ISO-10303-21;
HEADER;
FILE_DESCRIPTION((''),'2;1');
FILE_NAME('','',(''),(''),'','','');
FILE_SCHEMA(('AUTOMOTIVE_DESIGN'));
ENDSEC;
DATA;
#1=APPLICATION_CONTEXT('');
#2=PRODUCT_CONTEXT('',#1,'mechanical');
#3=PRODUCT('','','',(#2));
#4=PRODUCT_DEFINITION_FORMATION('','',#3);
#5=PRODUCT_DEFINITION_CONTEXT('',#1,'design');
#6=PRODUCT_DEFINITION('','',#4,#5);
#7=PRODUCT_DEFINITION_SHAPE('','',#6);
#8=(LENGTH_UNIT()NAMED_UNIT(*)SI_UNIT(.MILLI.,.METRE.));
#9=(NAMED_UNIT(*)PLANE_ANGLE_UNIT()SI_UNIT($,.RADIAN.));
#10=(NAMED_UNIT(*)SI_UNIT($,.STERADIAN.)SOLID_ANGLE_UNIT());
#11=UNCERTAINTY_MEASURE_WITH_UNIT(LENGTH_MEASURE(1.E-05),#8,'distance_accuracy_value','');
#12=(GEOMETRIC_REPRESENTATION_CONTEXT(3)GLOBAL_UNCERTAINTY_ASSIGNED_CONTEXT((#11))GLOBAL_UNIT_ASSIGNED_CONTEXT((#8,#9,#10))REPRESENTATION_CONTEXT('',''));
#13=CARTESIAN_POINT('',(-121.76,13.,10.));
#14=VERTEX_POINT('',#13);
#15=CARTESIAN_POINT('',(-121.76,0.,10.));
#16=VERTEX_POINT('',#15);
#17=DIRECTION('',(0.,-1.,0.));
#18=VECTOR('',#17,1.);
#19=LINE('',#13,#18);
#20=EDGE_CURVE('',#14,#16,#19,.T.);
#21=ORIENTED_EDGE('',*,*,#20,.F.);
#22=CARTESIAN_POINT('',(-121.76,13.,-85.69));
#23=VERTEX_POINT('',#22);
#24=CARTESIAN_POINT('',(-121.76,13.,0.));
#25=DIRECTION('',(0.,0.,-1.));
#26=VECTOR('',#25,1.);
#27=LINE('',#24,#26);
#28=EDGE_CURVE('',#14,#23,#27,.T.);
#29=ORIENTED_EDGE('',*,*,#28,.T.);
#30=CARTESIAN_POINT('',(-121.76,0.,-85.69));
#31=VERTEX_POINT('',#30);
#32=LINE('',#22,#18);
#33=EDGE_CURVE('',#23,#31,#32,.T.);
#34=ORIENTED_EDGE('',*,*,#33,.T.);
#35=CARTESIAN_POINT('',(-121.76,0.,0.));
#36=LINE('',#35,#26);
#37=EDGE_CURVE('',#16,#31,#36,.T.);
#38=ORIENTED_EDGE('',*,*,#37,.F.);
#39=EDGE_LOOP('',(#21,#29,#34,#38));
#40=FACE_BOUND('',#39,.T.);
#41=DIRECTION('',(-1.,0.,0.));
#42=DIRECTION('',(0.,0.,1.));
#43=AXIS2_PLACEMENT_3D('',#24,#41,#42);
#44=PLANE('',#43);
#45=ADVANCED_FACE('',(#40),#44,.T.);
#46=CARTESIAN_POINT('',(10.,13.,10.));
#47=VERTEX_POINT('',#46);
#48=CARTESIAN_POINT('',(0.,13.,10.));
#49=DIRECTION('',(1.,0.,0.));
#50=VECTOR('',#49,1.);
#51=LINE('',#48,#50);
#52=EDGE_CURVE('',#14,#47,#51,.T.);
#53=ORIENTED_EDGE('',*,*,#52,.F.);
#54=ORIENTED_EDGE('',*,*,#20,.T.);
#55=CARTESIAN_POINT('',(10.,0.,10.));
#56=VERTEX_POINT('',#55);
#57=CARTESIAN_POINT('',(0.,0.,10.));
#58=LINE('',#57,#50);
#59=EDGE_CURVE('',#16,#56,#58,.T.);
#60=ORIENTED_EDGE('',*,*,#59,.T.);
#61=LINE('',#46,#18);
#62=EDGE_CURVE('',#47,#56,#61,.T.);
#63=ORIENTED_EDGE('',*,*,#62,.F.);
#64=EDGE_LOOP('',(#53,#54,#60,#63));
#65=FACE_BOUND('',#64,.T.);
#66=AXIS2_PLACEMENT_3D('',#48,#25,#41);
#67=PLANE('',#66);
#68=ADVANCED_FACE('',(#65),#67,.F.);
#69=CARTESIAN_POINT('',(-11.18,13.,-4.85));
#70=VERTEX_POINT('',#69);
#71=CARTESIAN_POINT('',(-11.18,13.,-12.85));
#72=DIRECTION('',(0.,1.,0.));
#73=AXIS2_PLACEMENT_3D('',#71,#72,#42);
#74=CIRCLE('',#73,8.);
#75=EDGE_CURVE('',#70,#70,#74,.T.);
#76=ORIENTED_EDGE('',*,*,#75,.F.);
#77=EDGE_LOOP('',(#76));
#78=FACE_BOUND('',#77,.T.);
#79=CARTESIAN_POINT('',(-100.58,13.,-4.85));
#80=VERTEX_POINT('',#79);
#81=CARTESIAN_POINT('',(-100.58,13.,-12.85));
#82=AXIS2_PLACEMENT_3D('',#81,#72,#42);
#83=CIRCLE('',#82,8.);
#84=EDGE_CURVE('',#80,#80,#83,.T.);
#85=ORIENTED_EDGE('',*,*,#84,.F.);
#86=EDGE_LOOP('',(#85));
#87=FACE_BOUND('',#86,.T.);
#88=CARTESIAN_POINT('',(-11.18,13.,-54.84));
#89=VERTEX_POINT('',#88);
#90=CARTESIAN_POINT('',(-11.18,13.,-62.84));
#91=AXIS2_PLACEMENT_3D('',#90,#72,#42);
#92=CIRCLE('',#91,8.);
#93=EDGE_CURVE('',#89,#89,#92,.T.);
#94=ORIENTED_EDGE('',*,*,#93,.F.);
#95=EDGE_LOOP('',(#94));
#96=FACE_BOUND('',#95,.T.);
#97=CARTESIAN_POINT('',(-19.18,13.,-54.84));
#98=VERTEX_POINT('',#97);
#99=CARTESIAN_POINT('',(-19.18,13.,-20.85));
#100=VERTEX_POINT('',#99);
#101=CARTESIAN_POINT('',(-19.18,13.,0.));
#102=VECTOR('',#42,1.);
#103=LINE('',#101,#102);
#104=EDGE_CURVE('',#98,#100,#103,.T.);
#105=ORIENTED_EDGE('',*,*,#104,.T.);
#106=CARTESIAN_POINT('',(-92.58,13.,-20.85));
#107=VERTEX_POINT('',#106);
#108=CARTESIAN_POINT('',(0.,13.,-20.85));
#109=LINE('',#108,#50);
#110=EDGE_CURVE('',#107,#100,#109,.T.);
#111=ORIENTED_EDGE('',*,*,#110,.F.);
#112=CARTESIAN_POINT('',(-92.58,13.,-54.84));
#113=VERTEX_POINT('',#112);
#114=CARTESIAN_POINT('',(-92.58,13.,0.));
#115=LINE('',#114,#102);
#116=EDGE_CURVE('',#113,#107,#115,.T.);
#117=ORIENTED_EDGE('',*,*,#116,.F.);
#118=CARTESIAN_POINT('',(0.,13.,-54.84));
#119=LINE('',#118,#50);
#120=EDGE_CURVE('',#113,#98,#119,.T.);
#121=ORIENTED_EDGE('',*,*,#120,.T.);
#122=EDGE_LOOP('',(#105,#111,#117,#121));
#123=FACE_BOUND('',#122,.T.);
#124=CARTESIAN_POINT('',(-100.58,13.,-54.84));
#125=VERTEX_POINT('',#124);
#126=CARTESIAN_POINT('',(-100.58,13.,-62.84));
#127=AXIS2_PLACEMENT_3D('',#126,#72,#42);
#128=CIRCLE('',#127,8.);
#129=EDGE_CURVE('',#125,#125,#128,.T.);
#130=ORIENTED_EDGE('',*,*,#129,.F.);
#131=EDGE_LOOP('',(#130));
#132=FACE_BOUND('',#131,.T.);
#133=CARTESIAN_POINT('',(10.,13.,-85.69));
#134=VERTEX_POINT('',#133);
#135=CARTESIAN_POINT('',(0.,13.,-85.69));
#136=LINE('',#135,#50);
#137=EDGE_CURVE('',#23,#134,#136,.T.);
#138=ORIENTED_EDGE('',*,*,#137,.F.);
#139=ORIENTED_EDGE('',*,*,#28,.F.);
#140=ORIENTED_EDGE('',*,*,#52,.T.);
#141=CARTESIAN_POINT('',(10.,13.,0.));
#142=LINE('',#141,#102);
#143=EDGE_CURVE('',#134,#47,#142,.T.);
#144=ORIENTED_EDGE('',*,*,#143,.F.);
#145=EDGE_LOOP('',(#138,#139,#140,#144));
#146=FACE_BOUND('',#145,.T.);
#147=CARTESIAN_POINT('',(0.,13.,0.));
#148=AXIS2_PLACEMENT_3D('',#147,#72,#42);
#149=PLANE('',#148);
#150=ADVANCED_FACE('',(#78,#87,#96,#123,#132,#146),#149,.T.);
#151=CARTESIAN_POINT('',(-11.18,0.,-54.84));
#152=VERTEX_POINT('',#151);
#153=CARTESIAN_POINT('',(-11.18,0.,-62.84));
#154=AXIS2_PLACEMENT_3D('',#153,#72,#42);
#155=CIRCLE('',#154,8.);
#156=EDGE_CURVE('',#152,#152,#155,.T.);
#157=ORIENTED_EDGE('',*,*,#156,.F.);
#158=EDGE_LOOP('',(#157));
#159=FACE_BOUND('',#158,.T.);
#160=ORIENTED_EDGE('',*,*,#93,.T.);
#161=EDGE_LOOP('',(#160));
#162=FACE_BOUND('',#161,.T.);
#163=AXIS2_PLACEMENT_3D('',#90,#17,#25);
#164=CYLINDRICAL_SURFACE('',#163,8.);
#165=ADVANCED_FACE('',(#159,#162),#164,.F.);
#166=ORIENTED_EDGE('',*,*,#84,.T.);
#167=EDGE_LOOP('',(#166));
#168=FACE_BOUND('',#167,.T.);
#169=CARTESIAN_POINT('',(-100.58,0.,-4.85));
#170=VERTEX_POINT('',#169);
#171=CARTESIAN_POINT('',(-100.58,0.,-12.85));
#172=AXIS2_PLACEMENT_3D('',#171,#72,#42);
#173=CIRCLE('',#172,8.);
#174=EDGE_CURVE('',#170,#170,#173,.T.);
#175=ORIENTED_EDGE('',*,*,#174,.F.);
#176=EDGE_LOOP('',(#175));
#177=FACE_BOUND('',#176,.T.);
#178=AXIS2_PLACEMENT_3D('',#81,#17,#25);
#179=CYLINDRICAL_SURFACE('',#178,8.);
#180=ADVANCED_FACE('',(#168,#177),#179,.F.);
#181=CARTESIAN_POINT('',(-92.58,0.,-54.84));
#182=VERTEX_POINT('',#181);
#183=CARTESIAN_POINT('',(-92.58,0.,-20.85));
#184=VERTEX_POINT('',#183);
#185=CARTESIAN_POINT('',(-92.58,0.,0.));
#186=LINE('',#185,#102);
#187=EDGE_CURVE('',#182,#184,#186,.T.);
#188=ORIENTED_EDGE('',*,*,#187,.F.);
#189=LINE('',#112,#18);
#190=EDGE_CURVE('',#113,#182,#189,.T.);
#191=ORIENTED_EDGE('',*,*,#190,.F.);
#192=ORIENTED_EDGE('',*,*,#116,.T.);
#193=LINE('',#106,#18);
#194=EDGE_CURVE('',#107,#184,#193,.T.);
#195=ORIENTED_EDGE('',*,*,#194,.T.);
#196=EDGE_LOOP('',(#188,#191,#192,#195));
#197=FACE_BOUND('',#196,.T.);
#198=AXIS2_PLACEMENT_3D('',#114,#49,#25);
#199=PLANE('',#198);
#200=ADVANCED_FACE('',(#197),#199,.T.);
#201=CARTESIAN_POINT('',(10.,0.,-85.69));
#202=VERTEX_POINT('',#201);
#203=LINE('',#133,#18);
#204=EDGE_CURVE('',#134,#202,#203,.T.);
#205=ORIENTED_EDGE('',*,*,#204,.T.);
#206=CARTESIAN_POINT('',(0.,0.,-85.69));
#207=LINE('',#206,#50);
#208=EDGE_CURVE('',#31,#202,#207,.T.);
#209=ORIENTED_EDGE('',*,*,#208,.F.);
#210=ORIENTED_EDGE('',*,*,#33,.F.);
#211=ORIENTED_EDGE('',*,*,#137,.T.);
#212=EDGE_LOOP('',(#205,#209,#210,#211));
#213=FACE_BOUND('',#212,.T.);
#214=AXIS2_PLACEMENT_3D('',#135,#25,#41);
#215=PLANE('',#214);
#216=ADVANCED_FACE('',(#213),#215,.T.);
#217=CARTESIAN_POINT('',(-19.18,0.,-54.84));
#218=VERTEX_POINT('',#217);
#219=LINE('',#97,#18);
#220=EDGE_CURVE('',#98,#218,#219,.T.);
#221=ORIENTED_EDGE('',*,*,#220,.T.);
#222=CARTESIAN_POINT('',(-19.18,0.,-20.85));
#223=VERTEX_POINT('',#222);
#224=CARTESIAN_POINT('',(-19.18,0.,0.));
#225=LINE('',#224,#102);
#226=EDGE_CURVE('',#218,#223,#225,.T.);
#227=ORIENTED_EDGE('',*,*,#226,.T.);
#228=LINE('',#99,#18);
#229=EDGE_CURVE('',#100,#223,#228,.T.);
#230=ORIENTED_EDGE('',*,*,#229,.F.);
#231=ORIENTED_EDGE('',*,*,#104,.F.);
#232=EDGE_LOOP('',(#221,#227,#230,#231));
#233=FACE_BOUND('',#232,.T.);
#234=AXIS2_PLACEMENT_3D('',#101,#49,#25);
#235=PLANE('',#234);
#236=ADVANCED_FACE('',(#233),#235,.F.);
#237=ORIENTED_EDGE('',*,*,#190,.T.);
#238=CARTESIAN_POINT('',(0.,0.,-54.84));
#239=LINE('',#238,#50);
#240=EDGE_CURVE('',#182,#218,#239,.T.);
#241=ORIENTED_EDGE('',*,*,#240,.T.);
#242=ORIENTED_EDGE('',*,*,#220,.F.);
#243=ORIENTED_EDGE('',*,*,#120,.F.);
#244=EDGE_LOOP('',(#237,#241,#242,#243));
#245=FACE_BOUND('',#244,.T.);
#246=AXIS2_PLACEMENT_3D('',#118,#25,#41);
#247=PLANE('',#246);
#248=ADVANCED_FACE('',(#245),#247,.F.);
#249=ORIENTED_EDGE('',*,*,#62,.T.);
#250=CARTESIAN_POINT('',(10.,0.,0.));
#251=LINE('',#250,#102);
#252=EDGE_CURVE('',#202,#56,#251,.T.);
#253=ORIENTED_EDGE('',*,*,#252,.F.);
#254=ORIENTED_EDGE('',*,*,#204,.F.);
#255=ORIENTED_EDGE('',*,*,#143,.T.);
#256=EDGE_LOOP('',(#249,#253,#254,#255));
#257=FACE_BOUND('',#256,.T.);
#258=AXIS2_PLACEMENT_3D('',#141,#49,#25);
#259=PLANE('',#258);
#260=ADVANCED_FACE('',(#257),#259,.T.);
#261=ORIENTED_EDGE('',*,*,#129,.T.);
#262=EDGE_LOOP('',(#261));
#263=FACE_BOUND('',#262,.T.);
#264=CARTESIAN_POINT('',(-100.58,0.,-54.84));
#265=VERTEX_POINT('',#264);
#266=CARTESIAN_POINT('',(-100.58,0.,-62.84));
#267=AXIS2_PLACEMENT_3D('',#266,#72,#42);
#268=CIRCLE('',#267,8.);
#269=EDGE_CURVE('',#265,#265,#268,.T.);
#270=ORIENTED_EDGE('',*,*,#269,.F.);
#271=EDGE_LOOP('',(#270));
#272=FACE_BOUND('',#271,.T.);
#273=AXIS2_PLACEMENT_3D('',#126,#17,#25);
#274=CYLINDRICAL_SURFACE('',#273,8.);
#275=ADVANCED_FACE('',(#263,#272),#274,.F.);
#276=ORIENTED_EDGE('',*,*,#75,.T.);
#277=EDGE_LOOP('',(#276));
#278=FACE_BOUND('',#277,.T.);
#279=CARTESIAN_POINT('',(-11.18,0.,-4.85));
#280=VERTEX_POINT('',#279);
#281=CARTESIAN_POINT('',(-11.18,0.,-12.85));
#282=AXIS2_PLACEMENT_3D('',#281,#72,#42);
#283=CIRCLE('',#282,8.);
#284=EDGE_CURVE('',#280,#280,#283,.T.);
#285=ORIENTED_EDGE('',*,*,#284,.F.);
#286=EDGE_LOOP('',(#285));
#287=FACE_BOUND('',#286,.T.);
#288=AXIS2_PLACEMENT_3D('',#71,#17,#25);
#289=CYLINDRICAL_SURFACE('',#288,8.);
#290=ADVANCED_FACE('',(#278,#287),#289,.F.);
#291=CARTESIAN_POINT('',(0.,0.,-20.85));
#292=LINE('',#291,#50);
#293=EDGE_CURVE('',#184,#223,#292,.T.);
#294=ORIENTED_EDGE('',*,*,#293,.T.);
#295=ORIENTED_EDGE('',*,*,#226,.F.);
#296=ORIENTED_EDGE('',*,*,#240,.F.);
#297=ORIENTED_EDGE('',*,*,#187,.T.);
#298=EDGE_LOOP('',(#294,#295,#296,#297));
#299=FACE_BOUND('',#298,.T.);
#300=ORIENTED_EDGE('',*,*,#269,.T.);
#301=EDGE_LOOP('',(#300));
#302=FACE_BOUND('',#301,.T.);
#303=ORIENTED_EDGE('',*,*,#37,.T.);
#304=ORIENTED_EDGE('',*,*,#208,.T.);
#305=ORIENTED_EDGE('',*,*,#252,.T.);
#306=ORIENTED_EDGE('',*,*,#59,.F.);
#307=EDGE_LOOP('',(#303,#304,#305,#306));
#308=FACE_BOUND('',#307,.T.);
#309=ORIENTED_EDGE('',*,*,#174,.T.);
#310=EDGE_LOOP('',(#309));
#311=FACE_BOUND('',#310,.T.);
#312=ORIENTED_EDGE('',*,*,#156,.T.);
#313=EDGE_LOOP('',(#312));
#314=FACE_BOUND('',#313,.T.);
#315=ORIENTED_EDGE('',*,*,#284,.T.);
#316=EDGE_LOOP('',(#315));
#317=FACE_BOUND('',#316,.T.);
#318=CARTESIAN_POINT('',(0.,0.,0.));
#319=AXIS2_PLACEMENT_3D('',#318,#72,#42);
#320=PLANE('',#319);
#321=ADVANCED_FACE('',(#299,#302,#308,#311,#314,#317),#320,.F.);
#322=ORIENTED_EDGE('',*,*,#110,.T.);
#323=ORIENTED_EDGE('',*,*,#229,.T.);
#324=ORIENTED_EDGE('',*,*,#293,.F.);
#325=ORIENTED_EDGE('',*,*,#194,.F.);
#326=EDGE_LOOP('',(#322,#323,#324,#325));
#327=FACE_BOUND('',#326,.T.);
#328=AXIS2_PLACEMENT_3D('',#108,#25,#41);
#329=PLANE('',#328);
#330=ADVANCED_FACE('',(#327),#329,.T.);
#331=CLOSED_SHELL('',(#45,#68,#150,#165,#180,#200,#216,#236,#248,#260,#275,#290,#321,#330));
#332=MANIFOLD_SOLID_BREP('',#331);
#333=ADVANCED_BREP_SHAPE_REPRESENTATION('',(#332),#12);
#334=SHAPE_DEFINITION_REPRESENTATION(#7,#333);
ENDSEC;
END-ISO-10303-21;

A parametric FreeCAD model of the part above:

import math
import FreeCAD as App
import Part
import Sketcher

doc = App.newDocument("Part")
body = doc.addObject("PartDesign::Body", "Body")

# Sketch on XZ plane
sketch1 = body.newObject("Sketcher::SketchObject", "Sketch")
sketch1.AttachmentSupport = (doc.getObject("XZ_Plane"), [""])
sketch1.MapMode = "FlatFace"
sketch1.addGeometry(Part.LineSegment(App.Vector(-122, 10, 0), App.Vector(10, 10, 0)), False)
sketch1.addGeometry(Part.LineSegment(App.Vector(10, 10, 0), App.Vector(10, -86, 0)), False)
sketch1.addGeometry(Part.LineSegment(App.Vector(10, -86, 0), App.Vector(-122, -86, 0)), False)
sketch1.addGeometry(Part.LineSegment(App.Vector(-122, -86, 0), App.Vector(-122, 10, 0)), False)
sketch1.addGeometry(Part.Circle(App.Vector(-101, -13, 0), App.Vector(0, 0, 1), 8), False)
sketch1.addGeometry(Part.LineSegment(App.Vector(-19, -55, 0), App.Vector(-19, -21, 0)), False)
sketch1.addGeometry(Part.LineSegment(App.Vector(-19, -21, 0), App.Vector(-93, -21, 0)), False)
sketch1.addGeometry(Part.LineSegment(App.Vector(-93, -21, 0), App.Vector(-93, -55, 0)), False)
sketch1.addGeometry(Part.LineSegment(App.Vector(-93, -55, 0), App.Vector(-19, -55, 0)), False)
sketch1.addGeometry(Part.ArcOfCircle(Part.Circle(App.Vector(-11, -13, 0), App.Vector(0, 0, 1), 8), math.radians(0), math.radians(180)), False)
sketch1.addGeometry(Part.ArcOfCircle(Part.Circle(App.Vector(-11, -13, 0), App.Vector(0, 0, 1), 8), math.radians(-180), math.radians(-90)), False)
sketch1.addGeometry(Part.ArcOfCircle(Part.Circle(App.Vector(-11, -13, 0), App.Vector(0, 0, 1), 8), math.radians(-90), math.radians(0)), False)
sketch1.addGeometry(Part.ArcOfCircle(Part.Circle(App.Vector(-101, -63, 0), App.Vector(0, 0, 1), 8), math.radians(90), math.radians(360)), False)
sketch1.addGeometry(Part.ArcOfCircle(Part.Circle(App.Vector(-101, -63, 0), App.Vector(0, 0, 1), 8), math.radians(0), math.radians(90)), False)
sketch1.addGeometry(Part.Circle(App.Vector(-11, -63, 0), App.Vector(0, 0, 1), 8), False)
sketch1.addConstraint(Sketcher.Constraint("Coincident", 0, 2, 1, 1))
sketch1.addConstraint(Sketcher.Constraint("Coincident", 1, 2, 2, 1))
sketch1.addConstraint(Sketcher.Constraint("Coincident", 2, 2, 3, 1))
sketch1.addConstraint(Sketcher.Constraint("Coincident", 3, 2, 0, 1))
sketch1.addConstraint(Sketcher.Constraint("Coincident", 5, 2, 6, 1))
sketch1.addConstraint(Sketcher.Constraint("Coincident", 6, 2, 7, 1))
sketch1.addConstraint(Sketcher.Constraint("Coincident", 7, 2, 8, 1))
sketch1.addConstraint(Sketcher.Constraint("Coincident", 8, 2, 5, 1))
sketch1.addConstraint(Sketcher.Constraint("Tangent", 9, 2, 10, 1))
sketch1.addConstraint(Sketcher.Constraint("Tangent", 10, 2, 11, 1))
sketch1.addConstraint(Sketcher.Constraint("Tangent", 11, 2, 9, 1))
sketch1.addConstraint(Sketcher.Constraint("Tangent", 12, 1, 13, 2))
sketch1.addConstraint(Sketcher.Constraint("Coincident", 13, 1, 12, 2))
sketch1.addConstraint(Sketcher.Constraint("Horizontal", 0))
sketch1.addConstraint(Sketcher.Constraint("Vertical", 1))
sketch1.addConstraint(Sketcher.Constraint("Horizontal", 2))
sketch1.addConstraint(Sketcher.Constraint("Vertical", 3))
sketch1.addConstraint(Sketcher.Constraint("Vertical", 5))
sketch1.addConstraint(Sketcher.Constraint("Horizontal", 6))
sketch1.addConstraint(Sketcher.Constraint("Vertical", 7))
sketch1.addConstraint(Sketcher.Constraint("Horizontal", 8))
sketch1.addConstraint(Sketcher.Constraint("Equal", 4, 9))
sketch1.addConstraint(Sketcher.Constraint("Equal", 11, 12))
sketch1.addConstraint(Sketcher.Constraint("Equal", 13, 14))
sketch1.addConstraint(Sketcher.Constraint("Horizontal", 4, 3, 9, 3))
sketch1.addConstraint(Sketcher.Constraint("Horizontal", 13, 3, 14, 3))
sketch1.addConstraint(Sketcher.Constraint("Horizontal", 11, 3, 9, 2))
sketch1.addConstraint(Sketcher.Constraint("Horizontal", 6, 2, 10, 2))
sketch1.addConstraint(Sketcher.Constraint("Horizontal", 9, 2, 11, 2))
sketch1.addConstraint(Sketcher.Constraint("Horizontal", 8, 2, 12, 1))
sketch1.addConstraint(Sketcher.Constraint("Horizontal", 14, 3, 13, 1))
sketch1.addConstraint(Sketcher.Constraint("Vertical", 4, 3, 12, 3))
sketch1.addConstraint(Sketcher.Constraint("Vertical", 11, 3, 14, 3))
sketch1.addConstraint(Sketcher.Constraint("Vertical", 8, 2, 9, 2))
sketch1.addConstraint(Sketcher.Constraint("Vertical", 14, 3, 10, 2))
sketch1.addConstraint(Sketcher.Constraint("Vertical", 13, 3, 12, 1))
sketch1.addConstraint(Sketcher.Constraint("Vertical", 7, 2, 13, 1))
sketch1.addConstraint(Sketcher.Constraint("Diameter", 4, 16.0))
sketch1.addConstraint(Sketcher.Constraint("DistanceX", 6, 2, 6, 1, 73.4))
sketch1.addConstraint(Sketcher.Constraint("DistanceX", -1, 1, 0, 2, 10.0))
sketch1.addConstraint(Sketcher.Constraint("DistanceY", -1, 1, 0, 2, 10.0))
sketch1.addConstraint(Sketcher.Constraint("DistanceX", 0, 1, 0, 2, 131.76))
sketch1.addConstraint(Sketcher.Constraint("DistanceY", 1, 2, 1, 1, 95.69))
sketch1.addConstraint(Sketcher.Constraint("DistanceY", 5, 1, 5, 2, 33.99))
sketch1.addConstraint(Sketcher.Constraint("DistanceX", 4, 3, -1, 1, 100.58))
sketch1.addConstraint(Sketcher.Constraint("DistanceY", 4, 3, -1, 1, 12.85))
pad1 = body.newObject("PartDesign::Pad", "Pad")
pad1.Profile = sketch1
pad1.Length = 13
pad1.Reversed = True

doc.recompute()
